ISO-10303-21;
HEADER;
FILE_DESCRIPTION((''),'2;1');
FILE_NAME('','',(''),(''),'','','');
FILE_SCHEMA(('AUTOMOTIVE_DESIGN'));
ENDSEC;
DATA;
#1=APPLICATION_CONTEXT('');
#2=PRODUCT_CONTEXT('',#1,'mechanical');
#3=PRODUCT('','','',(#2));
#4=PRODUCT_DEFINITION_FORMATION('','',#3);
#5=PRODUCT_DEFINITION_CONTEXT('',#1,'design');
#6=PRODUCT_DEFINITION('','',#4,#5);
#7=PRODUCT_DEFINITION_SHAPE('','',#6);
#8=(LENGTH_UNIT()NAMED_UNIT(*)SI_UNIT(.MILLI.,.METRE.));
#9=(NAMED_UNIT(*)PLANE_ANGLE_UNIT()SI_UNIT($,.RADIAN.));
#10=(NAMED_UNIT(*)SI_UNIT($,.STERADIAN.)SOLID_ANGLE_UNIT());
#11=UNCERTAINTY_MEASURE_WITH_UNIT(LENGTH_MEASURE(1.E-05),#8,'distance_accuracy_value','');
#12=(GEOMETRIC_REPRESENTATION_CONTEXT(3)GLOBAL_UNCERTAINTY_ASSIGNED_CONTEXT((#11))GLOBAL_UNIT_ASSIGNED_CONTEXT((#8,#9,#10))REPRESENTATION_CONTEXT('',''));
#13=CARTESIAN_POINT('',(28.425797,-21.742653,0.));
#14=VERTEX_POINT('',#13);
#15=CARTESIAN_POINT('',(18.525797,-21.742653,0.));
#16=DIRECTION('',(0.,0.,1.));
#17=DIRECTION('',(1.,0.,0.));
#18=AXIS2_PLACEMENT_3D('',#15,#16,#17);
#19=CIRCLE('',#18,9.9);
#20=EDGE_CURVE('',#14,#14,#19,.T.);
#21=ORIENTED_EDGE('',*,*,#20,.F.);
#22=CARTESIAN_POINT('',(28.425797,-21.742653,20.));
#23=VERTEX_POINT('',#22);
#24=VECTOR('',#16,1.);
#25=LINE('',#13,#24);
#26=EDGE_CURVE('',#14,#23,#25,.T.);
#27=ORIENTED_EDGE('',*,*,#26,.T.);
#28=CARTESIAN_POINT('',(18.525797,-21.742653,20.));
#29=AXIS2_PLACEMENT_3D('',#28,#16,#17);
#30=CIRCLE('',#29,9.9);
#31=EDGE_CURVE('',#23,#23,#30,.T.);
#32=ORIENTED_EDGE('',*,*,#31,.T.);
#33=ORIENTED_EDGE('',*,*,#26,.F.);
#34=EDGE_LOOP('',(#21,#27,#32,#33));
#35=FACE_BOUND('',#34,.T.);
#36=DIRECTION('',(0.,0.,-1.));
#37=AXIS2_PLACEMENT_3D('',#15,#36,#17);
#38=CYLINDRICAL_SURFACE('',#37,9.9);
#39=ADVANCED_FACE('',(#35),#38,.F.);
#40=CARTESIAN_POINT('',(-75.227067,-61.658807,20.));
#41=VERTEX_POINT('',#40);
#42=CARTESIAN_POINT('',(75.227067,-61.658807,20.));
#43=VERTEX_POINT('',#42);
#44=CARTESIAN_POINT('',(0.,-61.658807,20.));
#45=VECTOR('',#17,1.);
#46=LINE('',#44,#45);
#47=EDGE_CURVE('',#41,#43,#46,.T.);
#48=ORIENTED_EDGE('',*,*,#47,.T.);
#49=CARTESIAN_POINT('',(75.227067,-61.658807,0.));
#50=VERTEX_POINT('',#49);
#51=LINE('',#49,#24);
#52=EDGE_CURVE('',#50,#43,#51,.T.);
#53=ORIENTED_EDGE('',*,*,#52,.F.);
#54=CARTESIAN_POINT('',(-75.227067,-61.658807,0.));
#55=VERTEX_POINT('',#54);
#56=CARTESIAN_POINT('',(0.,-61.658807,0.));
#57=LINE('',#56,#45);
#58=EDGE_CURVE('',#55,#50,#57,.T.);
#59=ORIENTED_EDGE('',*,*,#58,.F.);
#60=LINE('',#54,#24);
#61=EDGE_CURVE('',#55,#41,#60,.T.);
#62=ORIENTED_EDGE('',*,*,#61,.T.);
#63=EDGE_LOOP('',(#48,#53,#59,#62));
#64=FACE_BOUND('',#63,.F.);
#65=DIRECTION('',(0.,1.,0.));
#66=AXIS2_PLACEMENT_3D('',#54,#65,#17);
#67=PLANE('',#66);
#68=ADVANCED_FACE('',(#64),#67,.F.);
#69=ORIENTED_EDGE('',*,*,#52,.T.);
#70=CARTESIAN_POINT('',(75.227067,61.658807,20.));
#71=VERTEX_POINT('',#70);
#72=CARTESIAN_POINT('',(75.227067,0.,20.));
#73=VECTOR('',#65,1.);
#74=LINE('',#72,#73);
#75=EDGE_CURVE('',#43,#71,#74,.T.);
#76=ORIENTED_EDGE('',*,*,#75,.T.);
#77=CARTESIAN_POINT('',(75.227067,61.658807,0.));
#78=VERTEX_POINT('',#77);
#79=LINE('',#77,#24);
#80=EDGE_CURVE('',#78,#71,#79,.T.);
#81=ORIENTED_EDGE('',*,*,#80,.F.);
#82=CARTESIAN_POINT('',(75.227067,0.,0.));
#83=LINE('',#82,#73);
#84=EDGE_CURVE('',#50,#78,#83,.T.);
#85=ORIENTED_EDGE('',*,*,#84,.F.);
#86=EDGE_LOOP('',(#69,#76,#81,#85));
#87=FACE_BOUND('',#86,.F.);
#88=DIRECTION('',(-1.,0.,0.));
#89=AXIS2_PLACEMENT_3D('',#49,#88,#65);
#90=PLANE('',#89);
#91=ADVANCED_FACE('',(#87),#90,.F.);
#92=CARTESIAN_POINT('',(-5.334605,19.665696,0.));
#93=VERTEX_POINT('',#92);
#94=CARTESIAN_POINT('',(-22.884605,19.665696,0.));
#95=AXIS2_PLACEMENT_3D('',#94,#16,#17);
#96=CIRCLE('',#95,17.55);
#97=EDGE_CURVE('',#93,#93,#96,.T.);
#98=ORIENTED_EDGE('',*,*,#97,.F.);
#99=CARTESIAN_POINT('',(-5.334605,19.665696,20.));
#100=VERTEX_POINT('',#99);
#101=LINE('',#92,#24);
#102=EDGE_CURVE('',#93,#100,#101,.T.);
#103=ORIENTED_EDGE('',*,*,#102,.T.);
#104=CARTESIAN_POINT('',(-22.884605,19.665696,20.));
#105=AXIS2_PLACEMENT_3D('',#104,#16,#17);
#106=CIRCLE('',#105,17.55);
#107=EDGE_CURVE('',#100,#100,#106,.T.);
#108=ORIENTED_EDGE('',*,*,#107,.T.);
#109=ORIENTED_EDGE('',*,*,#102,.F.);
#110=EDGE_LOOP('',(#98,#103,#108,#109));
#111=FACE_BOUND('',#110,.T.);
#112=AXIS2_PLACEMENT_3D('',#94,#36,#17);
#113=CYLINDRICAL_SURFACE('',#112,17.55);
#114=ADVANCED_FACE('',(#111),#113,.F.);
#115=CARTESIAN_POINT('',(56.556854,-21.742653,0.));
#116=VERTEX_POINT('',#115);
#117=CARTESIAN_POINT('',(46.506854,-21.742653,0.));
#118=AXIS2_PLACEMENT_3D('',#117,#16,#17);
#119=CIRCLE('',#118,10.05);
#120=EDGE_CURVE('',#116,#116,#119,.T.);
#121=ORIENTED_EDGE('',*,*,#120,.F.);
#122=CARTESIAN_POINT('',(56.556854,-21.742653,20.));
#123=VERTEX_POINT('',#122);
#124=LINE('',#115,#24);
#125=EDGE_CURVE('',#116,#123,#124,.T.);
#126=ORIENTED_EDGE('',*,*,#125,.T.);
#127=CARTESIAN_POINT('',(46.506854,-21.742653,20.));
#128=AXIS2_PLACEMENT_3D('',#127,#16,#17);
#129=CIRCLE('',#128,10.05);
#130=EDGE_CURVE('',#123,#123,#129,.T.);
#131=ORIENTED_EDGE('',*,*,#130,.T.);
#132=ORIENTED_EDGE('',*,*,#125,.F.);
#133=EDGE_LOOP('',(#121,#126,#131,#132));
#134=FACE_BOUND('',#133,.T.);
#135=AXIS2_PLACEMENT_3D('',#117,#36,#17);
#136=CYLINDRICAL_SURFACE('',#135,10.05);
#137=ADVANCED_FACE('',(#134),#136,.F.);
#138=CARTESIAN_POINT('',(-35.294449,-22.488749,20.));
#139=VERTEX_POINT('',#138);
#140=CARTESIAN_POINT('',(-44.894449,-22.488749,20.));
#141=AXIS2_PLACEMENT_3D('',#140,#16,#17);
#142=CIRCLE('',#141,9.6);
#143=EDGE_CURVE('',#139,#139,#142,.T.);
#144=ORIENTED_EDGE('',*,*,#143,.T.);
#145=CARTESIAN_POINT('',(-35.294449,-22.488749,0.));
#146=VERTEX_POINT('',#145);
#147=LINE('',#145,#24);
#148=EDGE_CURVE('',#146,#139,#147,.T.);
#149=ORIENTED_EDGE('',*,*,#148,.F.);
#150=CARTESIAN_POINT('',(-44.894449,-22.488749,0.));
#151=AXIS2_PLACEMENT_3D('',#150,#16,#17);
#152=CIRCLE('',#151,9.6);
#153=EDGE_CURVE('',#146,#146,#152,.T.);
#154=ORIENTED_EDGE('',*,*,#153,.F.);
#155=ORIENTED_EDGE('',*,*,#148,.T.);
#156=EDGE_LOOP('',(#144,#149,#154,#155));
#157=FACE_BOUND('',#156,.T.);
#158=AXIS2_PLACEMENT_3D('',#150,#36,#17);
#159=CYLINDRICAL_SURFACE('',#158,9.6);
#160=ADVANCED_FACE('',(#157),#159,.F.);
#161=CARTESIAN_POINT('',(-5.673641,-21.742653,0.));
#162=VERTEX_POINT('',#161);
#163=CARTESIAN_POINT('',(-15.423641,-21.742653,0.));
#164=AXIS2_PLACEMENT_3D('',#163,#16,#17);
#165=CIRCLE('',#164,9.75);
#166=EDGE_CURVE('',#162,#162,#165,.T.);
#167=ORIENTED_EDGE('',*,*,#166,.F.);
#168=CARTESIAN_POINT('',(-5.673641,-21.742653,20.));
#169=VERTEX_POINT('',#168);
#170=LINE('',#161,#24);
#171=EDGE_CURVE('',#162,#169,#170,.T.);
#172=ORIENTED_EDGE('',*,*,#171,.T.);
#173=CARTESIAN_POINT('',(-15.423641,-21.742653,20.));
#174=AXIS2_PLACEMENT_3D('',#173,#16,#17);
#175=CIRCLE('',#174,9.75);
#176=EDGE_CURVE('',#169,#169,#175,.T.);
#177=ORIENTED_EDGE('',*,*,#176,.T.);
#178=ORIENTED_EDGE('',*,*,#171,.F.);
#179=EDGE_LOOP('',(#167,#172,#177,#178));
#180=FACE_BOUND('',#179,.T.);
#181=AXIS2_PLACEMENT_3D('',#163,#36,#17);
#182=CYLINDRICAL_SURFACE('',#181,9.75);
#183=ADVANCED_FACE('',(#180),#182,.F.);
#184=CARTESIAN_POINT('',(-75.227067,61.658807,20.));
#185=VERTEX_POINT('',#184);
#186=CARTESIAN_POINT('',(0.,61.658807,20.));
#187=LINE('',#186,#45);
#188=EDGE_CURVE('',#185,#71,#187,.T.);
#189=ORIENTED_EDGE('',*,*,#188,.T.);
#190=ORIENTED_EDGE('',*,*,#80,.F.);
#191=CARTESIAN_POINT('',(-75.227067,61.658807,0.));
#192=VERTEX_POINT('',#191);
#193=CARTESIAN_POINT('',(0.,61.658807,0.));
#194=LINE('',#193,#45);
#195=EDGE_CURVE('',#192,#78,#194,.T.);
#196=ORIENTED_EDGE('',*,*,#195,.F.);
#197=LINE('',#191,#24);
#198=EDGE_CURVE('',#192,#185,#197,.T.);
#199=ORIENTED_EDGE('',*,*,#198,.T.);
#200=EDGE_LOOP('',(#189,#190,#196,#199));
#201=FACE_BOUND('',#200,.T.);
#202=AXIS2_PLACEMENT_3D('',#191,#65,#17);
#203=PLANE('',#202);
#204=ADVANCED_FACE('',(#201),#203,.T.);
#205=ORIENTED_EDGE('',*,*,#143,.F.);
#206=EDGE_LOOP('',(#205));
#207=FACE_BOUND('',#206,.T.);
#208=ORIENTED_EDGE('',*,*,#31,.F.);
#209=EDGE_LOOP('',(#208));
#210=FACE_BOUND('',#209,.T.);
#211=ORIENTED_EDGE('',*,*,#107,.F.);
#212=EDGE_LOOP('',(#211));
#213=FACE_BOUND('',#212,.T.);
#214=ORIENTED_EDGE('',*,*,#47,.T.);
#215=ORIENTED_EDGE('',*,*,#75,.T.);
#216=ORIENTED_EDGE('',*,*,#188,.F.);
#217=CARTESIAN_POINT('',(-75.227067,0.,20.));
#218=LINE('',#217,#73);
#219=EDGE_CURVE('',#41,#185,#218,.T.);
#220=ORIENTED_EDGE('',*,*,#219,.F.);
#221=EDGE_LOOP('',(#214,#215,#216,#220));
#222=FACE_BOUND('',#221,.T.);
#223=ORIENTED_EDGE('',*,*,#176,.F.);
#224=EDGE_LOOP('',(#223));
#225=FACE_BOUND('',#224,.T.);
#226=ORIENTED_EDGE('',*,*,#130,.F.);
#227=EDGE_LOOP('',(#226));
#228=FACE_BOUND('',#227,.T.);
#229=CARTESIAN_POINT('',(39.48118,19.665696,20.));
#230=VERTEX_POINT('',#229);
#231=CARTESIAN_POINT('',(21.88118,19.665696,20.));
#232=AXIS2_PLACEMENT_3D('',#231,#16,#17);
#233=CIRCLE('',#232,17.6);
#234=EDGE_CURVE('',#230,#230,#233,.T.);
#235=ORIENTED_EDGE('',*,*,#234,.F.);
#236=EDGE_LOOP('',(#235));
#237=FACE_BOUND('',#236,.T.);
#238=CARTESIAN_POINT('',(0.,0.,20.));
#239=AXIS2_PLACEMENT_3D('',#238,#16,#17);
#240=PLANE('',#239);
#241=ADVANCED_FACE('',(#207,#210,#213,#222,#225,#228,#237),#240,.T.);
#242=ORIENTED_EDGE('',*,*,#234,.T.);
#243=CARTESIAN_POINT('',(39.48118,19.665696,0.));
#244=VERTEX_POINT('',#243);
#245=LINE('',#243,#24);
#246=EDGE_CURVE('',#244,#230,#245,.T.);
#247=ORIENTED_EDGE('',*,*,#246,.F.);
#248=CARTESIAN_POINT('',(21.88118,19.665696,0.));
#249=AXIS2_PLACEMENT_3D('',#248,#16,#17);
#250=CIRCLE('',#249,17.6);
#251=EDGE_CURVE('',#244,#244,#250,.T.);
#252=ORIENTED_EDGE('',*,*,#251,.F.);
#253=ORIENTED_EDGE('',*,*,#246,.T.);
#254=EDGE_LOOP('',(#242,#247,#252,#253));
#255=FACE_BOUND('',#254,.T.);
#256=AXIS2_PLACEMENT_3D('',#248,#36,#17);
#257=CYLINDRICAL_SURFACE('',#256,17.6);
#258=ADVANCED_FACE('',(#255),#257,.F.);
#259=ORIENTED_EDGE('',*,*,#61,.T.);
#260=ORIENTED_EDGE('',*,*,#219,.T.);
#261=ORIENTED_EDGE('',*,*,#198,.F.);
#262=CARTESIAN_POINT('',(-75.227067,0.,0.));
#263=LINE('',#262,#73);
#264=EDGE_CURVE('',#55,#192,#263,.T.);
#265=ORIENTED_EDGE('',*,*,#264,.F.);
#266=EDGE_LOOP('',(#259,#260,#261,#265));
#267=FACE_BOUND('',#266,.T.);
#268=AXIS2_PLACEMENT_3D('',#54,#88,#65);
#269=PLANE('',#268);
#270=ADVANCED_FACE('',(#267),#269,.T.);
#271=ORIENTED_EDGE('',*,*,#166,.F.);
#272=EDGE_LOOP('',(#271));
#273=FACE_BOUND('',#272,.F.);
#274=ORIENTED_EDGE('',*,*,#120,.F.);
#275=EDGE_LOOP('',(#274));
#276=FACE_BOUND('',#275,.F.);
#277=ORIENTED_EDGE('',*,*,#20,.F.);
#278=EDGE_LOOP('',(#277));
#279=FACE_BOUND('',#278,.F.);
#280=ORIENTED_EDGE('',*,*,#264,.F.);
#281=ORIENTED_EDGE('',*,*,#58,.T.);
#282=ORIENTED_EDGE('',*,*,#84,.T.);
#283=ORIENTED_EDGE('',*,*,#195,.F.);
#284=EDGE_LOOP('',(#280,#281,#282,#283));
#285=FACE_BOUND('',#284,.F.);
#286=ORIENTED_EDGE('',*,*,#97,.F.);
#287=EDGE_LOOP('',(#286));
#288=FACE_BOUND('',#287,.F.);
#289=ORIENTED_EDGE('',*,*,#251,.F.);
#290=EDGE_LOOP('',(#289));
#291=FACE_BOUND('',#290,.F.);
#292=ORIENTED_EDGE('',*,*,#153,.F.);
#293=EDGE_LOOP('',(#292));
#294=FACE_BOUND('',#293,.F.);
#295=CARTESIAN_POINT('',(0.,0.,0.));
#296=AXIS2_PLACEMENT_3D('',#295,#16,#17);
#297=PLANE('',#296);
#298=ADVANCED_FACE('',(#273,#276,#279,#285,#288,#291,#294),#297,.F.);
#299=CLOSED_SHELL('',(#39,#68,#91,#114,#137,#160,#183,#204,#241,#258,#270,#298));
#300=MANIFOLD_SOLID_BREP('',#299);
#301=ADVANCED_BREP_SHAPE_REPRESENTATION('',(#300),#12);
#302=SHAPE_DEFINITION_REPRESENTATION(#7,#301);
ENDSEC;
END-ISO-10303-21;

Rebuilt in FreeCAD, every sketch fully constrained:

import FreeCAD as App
import Part
import Sketcher

doc = App.newDocument("Part")
body = doc.addObject("PartDesign::Body", "Body")

sketch1 = body.newObject("Sketcher::SketchObject", "Sketch")
sketch1.AttachmentSupport = (doc.getObject("XY_Plane"), [""])
sketch1.MapMode = "FlatFace"
sketch1.addGeometry([
    Part.LineSegment(App.Vector(-75, 62, 0), App.Vector(-75, -62, 0)),
    Part.LineSegment(App.Vector(-75, -62, 0), App.Vector(75, -62, 0)),
    Part.LineSegment(App.Vector(75, -62, 0), App.Vector(75, 62, 0)),
    Part.LineSegment(App.Vector(75, 62, 0), App.Vector(-75, 62, 0)),
    Part.Circle(App.Vector(-45, -22, 0), App.Vector(0, 0, 1), 10),
    Part.Circle(App.Vector(-15, -22, 0), App.Vector(0, 0, 1), 10),
    Part.Circle(App.Vector(19, -22, 0), App.Vector(0, 0, 1), 10),
    Part.Circle(App.Vector(47, -22, 0), App.Vector(0, 0, 1), 10),
    Part.Circle(App.Vector(-23, 20, 0), App.Vector(0, 0, 1), 18),
    Part.Circle(App.Vector(22, 20, 0), App.Vector(0, 0, 1), 18),
], False)
sketch1.addConstraint([
    Sketcher.Constraint("Coincident", 0, 2, 1, 1),
    Sketcher.Constraint("Coincident", 1, 2, 2, 1),
    Sketcher.Constraint("Coincident", 2, 2, 3, 1),
    Sketcher.Constraint("Coincident", 3, 2, 0, 1),
    Sketcher.Constraint("Vertical", 0),
    Sketcher.Constraint("Horizontal", 1),
    Sketcher.Constraint("Vertical", 2),
    Sketcher.Constraint("Horizontal", 3),
    Sketcher.Constraint("Symmetric", 0, 2, 2, 2, -1, 1),
    Sketcher.Constraint("Horizontal", 5, 3, 6, 3),
    Sketcher.Constraint("Horizontal", 6, 3, 7, 3),
    Sketcher.Constraint("Horizontal", 8, 3, 9, 3),
    Sketcher.Constraint("Diameter", 4, 19.2),
    Sketcher.Constraint("Diameter", 5, 19.5),
    Sketcher.Constraint("Diameter", 6, 19.8),
    Sketcher.Constraint("Diameter", 7, 20.1),
    Sketcher.Constraint("Diameter", 8, 35.1),
    Sketcher.Constraint("Diameter", 9, 35.2),
    Sketcher.Constraint("DistanceX", 1, 1, 1, 2, 150.454134),
    Sketcher.Constraint("DistanceY", 0, 2, 0, 1, 123.317614),
    Sketcher.Constraint("DistanceX", 4, 3, -1, 1, 44.894449),
    Sketcher.Constraint("DistanceY", 4, 3, -1, 1, 22.488749),
    Sketcher.Constraint("DistanceX", 5, 3, -1, 1, 15.423641),
    Sketcher.Constraint("DistanceX", -1, 1, 9, 3, 21.88118),
    Sketcher.Constraint("DistanceY", 5, 3, 8, 3, 41.408349),
    Sketcher.Constraint("DistanceX", 8, 3, 7, 3, 69.391459),
    Sketcher.Constraint("DistanceX", 6, 3, 1, 2, 56.70127),
    Sketcher.Constraint("DistanceY", 9, 3, 2, 2, 41.993111),
    Sketcher.Constraint("DistanceX", 8, 3, 2, 2, 98.111672),
])
pad1 = body.newObject("PartDesign::Pad", "Pad")
pad1.Profile = sketch1
pad1.Length = 20

doc.recompute()
